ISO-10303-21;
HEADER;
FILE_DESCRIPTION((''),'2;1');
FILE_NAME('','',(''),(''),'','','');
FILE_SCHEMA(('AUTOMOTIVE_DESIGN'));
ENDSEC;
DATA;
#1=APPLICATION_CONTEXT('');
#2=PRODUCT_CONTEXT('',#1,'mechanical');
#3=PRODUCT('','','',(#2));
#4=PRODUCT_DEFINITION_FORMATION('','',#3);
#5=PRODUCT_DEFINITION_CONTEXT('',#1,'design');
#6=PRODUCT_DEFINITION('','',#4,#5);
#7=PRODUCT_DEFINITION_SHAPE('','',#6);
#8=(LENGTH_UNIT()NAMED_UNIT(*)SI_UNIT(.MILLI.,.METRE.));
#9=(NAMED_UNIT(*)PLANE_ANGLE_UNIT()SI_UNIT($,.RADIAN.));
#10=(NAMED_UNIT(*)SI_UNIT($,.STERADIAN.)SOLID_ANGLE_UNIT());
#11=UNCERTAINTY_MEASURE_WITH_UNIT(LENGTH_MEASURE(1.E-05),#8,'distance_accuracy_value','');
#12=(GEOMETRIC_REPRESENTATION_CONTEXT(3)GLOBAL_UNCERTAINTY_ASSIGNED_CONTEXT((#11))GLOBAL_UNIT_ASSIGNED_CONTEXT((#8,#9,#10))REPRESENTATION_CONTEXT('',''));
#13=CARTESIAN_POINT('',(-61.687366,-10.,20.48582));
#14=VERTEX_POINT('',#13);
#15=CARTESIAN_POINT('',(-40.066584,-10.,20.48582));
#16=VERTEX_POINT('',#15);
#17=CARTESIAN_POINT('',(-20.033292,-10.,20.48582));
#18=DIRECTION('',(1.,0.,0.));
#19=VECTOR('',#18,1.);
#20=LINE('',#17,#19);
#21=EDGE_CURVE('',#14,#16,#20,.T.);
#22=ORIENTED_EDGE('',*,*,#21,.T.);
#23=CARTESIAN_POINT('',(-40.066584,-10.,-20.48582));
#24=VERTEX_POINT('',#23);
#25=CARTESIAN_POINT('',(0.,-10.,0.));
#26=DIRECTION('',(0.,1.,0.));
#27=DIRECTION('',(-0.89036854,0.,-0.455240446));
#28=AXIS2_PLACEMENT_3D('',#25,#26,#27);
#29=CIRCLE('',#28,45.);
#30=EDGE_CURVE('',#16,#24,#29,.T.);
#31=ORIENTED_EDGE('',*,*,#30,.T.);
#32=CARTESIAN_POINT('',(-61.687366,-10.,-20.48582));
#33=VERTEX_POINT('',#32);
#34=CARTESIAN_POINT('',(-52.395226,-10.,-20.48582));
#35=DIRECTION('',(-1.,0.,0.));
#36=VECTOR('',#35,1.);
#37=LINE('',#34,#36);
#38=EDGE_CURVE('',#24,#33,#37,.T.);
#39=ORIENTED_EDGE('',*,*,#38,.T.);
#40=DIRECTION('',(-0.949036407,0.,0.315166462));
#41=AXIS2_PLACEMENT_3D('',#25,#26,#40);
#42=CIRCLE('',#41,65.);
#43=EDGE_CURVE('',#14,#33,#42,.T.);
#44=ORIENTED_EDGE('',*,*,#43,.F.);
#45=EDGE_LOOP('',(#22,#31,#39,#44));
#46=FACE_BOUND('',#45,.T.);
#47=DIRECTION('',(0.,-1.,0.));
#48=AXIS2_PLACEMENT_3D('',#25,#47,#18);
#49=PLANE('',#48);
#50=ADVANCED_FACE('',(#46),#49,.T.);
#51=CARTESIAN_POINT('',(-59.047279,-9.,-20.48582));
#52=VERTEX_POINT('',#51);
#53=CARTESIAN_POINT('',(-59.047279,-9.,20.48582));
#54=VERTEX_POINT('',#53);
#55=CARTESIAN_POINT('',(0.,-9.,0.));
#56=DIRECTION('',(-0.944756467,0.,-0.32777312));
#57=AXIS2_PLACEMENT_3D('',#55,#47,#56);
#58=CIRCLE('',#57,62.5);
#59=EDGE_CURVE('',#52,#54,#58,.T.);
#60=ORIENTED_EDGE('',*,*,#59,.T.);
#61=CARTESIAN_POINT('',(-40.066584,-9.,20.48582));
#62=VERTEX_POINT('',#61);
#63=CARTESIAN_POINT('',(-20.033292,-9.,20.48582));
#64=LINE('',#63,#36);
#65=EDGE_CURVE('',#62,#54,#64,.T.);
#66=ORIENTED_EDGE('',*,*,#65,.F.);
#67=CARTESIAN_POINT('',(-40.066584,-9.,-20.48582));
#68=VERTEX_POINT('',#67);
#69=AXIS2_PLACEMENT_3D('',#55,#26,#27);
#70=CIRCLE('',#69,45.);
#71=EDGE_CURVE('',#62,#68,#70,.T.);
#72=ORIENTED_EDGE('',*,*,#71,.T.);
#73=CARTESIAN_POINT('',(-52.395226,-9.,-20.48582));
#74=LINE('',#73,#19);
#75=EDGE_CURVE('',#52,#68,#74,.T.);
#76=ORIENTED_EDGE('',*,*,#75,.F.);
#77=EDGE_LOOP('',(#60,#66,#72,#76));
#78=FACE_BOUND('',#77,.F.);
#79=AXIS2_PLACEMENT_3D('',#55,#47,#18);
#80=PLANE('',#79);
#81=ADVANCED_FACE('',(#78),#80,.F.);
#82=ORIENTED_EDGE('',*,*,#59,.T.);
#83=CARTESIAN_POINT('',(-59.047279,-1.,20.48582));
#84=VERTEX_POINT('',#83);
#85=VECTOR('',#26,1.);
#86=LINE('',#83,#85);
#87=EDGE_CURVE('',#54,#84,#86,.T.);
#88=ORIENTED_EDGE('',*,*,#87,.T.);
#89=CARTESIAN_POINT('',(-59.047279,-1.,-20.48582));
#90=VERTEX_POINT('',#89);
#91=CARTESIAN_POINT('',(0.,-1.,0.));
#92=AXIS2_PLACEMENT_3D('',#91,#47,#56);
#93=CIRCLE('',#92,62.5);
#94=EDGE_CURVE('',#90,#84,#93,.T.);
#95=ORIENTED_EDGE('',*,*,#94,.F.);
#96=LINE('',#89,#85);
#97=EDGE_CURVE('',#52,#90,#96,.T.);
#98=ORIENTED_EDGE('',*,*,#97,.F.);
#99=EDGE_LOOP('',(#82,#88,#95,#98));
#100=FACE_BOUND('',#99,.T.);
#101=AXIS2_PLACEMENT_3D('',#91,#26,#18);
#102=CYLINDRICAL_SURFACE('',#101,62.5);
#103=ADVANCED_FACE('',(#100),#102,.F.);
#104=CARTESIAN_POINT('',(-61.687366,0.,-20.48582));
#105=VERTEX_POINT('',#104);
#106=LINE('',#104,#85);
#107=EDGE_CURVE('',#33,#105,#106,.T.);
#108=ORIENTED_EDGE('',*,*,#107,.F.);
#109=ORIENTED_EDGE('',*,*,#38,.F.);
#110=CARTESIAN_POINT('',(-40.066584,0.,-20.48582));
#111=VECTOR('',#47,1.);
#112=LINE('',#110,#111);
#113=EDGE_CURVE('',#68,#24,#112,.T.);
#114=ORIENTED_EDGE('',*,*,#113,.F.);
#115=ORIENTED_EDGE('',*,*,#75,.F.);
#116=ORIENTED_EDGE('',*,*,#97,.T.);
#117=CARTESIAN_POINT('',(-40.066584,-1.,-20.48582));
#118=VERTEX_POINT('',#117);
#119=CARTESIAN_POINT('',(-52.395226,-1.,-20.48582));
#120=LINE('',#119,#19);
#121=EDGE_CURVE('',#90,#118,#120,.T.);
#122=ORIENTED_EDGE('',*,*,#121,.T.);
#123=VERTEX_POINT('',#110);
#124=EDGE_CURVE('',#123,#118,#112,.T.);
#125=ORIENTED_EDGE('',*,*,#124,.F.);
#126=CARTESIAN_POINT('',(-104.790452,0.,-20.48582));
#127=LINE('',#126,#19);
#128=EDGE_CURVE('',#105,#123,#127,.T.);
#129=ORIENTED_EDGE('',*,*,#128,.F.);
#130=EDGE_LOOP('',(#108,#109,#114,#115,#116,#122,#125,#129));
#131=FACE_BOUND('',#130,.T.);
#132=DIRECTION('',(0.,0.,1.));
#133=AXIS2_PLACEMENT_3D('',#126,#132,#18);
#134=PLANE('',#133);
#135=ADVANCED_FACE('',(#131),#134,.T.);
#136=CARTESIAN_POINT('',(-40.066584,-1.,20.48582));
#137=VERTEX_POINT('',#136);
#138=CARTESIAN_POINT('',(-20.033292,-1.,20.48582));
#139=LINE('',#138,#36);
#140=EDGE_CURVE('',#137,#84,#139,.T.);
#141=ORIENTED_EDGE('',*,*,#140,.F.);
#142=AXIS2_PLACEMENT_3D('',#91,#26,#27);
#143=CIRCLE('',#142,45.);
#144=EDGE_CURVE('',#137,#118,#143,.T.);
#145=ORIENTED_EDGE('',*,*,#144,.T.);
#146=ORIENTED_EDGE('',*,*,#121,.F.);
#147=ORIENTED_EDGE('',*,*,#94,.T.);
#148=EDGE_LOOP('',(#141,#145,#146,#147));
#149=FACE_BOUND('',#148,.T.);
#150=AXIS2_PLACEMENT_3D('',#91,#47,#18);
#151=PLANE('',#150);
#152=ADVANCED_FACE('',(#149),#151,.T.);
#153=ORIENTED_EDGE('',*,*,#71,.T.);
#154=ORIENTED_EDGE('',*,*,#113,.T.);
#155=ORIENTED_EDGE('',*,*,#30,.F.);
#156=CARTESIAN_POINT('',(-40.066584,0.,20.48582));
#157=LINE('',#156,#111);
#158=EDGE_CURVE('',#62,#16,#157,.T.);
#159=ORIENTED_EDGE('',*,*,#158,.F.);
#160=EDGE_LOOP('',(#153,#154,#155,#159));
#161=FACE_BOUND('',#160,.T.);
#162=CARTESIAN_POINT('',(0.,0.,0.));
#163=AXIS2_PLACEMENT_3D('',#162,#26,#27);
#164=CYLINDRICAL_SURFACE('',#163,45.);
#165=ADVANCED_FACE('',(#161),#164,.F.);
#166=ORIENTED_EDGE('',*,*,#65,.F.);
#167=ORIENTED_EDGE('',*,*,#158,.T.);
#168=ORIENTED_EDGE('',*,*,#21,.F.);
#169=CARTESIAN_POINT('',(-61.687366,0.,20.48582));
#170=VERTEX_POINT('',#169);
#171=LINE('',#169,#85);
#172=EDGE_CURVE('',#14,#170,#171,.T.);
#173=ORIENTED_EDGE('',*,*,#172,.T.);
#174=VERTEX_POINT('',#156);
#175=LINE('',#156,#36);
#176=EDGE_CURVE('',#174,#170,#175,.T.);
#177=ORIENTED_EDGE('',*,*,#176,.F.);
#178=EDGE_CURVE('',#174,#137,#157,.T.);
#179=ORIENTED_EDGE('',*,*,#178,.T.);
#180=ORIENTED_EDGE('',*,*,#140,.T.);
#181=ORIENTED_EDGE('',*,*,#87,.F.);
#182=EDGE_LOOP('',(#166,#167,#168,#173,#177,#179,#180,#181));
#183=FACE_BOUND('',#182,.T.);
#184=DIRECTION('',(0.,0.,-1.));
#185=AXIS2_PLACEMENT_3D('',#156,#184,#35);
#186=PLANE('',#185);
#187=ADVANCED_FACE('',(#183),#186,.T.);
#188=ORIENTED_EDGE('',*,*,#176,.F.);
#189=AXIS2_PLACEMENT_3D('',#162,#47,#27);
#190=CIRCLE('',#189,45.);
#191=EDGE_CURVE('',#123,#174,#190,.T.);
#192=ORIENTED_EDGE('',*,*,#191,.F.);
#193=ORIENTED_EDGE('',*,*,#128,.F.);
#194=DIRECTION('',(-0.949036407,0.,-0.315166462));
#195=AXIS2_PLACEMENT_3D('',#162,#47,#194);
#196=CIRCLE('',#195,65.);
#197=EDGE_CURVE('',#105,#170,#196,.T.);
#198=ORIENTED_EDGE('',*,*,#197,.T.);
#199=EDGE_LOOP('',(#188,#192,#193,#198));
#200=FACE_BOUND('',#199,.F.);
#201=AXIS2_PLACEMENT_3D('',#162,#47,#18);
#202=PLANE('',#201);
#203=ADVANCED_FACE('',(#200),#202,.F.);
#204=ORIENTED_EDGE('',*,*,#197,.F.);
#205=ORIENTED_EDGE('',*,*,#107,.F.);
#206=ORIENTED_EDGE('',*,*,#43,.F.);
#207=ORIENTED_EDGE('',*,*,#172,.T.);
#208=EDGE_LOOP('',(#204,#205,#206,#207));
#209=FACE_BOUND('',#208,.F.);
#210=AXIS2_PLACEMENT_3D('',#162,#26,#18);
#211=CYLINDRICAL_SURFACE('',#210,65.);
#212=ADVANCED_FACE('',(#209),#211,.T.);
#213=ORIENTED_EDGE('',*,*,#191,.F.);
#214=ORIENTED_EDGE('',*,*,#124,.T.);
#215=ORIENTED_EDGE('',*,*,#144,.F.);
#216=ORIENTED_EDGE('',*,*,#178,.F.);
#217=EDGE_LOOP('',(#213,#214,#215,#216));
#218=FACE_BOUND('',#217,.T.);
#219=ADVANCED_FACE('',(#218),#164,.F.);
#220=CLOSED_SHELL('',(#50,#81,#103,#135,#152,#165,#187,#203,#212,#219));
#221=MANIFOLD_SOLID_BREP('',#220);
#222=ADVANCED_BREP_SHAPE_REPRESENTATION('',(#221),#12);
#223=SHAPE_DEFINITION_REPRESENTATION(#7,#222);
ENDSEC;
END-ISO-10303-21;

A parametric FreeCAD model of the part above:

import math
import FreeCAD as App
import Part
import Sketcher

doc = App.newDocument("Part")
body = doc.addObject("PartDesign::Body", "Body")

sketch1 = doc.addObject("Sketcher::SketchObject", "Sketch")
body.addObject(sketch1)
sketch1.AttachmentSupport = (doc.XZ_Plane, [""])
sketch1.MapMode = "FlatFace"
sketch1.addGeometry(Part.Circle(App.Vector(0, 0, 0), App.Vector(0, 0, 1), 65), False)
sketch1.addConstraint(Sketcher.Constraint("Coincident", 0, 3, -1, 1))
sketch1.addConstraint(Sketcher.Constraint("Diameter", 0, 130.0))
pad1 = doc.addObject("PartDesign::Pad", "Pad")
body.addObject(pad1)
pad1.Profile = sketch1
pad1.Length = 10

sketch2 = doc.addObject("Sketcher::SketchObject", "Sketch001")
body.addObject(sketch2)
sketch2.AttachmentSupport = (doc.XZ_Plane, [""])
sketch2.MapMode = "FlatFace"
sketch2.addGeometry(Part.LineSegment(App.Vector(-104.790452, -20.48582, 0), App.Vector(-40.066584, -20.48582, 0)), False)
sketch2.addGeometry(Part.ArcOfCircle(Part.Circle(App.Vector(0, 0, 0), App.Vector(0, 0, 1), 45), math.radians(-152.919594), math.radians(152.919594)), False)
sketch2.addGeometry(Part.LineSegment(App.Vector(-40.066584, 20.48582, 0), App.Vector(-167.11625, 20.48582, 0)), False)
sketch2.addGeometry(Part.LineSegment(App.Vector(-167.11625, 20.48582, 0), App.Vector(-104.790452, -20.48582, 0)), False)
sketch2.addConstraint(Sketcher.Constraint("Coincident", 0, 2, 1, 1))
sketch2.addConstraint(Sketcher.Constraint("Coincident", 1, 2, 2, 1))
sketch2.addConstraint(Sketcher.Constraint("Coincident", 2, 2, 3, 1))
sketch2.addConstraint(Sketcher.Constraint("Coincident", 3, 2, 0, 1))
sketch2.addConstraint(Sketcher.Constraint("Horizontal", 0))
sketch2.addConstraint(Sketcher.Constraint("Horizontal", 2))
sketch2.addConstraint(Sketcher.Constraint("Coincident", 1, 3, -1, 1))
sketch2.addConstraint(Sketcher.Constraint("Vertical", 0, 2, 1, 2))
sketch2.addConstraint(Sketcher.Constraint("Radius", 1, 45.0))
sketch2.addConstraint(Sketcher.Constraint("DistanceX", 0, 1, 0, 2, 64.723868))
sketch2.addConstraint(Sketcher.Constraint("DistanceX", 2, 2, 3, 2, 62.325798))
sketch2.addConstraint(Sketcher.Constraint("Distance", 3, 74.586731))
pocket1 = doc.addObject("PartDesign::Pocket", "Pocket")
body.addObject(pocket1)
pocket1.Profile = sketch2
pocket1.Type = "ThroughAll"
pocket1.Reversed = True

sketch3 = doc.addObject("Sketcher::SketchObject", "Sketch002")
body.addObject(sketch3)
sketch3.AttachmentSupport = (doc.XZ_Plane, [""])
sketch3.MapMode = "FlatFace"
sketch3.AttachmentOffset = App.Placement(App.Vector(0, 0, 1), App.Rotation())
sketch3.addGeometry(Part.Circle(App.Vector(0, 0, 0), App.Vector(0, 0, 1), 62.5), False)
sketch3.addConstraint(Sketcher.Constraint("Coincident", 0, 3, -1, 1))
sketch3.addConstraint(Sketcher.Constraint("Diameter", 0, 125.0))
pocket2 = doc.addObject("PartDesign::Pocket", "Pocket001")
body.addObject(pocket2)
pocket2.Profile = sketch3
pocket2.Length = 8
pocket2.Reversed = True

doc.recompute()
